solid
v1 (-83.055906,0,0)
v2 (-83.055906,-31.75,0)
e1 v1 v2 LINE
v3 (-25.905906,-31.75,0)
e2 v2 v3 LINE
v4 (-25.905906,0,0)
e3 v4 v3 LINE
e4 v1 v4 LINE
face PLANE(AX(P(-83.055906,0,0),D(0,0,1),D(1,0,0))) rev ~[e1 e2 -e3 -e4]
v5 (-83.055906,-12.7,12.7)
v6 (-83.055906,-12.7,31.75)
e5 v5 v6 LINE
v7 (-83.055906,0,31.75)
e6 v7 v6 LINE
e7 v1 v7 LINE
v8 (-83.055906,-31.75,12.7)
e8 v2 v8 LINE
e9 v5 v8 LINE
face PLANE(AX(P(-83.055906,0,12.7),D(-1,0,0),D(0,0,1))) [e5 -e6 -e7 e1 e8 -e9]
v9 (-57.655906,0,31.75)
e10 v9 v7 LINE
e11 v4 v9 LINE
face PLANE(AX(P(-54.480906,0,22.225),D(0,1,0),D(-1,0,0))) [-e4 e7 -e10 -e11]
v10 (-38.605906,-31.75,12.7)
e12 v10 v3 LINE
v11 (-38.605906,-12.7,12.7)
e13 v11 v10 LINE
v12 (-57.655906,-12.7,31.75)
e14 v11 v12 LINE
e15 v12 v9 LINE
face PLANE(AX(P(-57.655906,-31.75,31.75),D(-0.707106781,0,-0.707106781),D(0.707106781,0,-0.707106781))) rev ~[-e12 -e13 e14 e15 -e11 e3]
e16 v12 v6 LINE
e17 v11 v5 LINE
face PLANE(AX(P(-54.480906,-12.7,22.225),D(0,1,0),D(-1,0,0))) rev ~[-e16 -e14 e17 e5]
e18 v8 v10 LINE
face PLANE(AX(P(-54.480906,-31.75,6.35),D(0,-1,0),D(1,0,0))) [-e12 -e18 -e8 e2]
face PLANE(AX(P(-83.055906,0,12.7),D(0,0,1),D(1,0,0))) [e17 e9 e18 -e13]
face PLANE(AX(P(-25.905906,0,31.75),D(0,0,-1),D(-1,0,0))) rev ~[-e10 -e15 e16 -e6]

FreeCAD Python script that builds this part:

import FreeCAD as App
import Part
import Sketcher

V = App.Vector
Q = App.Units.Quantity

doc = App.newDocument("Part")
body = doc.addObject("PartDesign::Body", "Body")

sketch1 = body.newObject("Sketcher::SketchObject", "Sketch")
sketch1.AttachmentSupport = (doc.getObject("XZ_Plane"), [""])
sketch1.MapMode = "FlatFace"
sketch1.addGeometry([
    Part.LineSegment(V(-83, 13, 0), V(-83, 0, 0)),
    Part.LineSegment(V(-83, 0, 0), V(-26, 0, 0)),
    Part.LineSegment(V(-26, 0, 0), V(-26, 13, 0)),
    Part.LineSegment(V(-26, 13, 0), V(-83, 13, 0)),
], False)
sketch1.addConstraint([
    Sketcher.Constraint("Coincident", 0, 2, 1, 1),
    Sketcher.Constraint("Coincident", 1, 2, 2, 1),
    Sketcher.Constraint("Coincident", 2, 2, 3, 1),
    Sketcher.Constraint("Coincident", 3, 2, 0, 1),
    Sketcher.Constraint("Vertical", 0),
    Sketcher.Constraint("Horizontal", 1),
    Sketcher.Constraint("Vertical", 2),
    Sketcher.Constraint("Horizontal", 3),
    Sketcher.Constraint("PointOnObject", 0, 2, -1),
    Sketcher.Constraint("DistanceY", 0, 2, 0, 1, Q("0.5 in")),
    Sketcher.Constraint("DistanceX", 1, 1, 1, 2, Q("2.25 in")),
    Sketcher.Constraint("DistanceX", 0, 2, -1, 1, Q("83.055906 mm")),
])
pad1 = body.newObject("PartDesign::Pad", "Pad")
pad1.Profile = sketch1
pad1.Length = Q("1.25 in")

sketch2 = body.newObject("Sketcher::SketchObject", "Sketch001")
sketch2.AttachmentSupport = (doc.getObject("XZ_Plane"), [""])
sketch2.MapMode = "FlatFace"
sketch2.addGeometry([
    Part.LineSegment(V(-26, 32, 0), V(-26, 13, 0)),
    Part.LineSegment(V(-26, 13, 0), V(-83, 13, 0)),
    Part.LineSegment(V(-83, 13, 0), V(-83, 32, 0)),
    Part.LineSegment(V(-83, 32, 0), V(-26, 32, 0)),
], False)
sketch2.addConstraint([
    Sketcher.Constraint("Coincident", 0, 2, 1, 1),
    Sketcher.Constraint("Coincident", 1, 2, 2, 1),
    Sketcher.Constraint("Coincident", 2, 2, 3, 1),
    Sketcher.Constraint("Coincident", 3, 2, 0, 1),
    Sketcher.Constraint("Vertical", 0),
    Sketcher.Constraint("Horizontal", 1),
    Sketcher.Constraint("Vertical", 2),
    Sketcher.Constraint("Horizontal", 3),
    Sketcher.Constraint("DistanceX", 1, 2, 1, 1, Q("2.25 in")),
    Sketcher.Constraint("DistanceY", 0, 2, 0, 1, Q("0.75 in")),
    Sketcher.Constraint("DistanceY", -1, 1, 0, 2, Q("0.5 in")),
    Sketcher.Constraint("DistanceX", 0, 2, -1, 1, Q("25.905906 mm")),
])
pad2 = body.newObject("PartDesign::Pad", "Pad001")
pad2.Profile = sketch2
pad2.Length = Q("0.5 in")

sketch3 = body.newObject("Sketcher::SketchObject", "Sketch002")
sketch3.AttachmentSupport = (doc.getObject("XZ_Plane"), [""])
sketch3.MapMode = "FlatFace"
sketch3.AttachmentOffset = App.Placement(V(0, 0, 1.25 * 25.4), App.Rotation())
sketch3.addGeometry([
    Part.LineSegment(V(-58, 32, 0), V(-26, 0, 0)),
    Part.LineSegment(V(-26, 0, 0), V(-26, 32, 0)),
    Part.LineSegment(V(-26, 32, 0), V(-58, 32, 0)),
], False)
sketch3.addConstraint([
    Sketcher.Constraint("Coincident", 0, 2, 1, 1),
    Sketcher.Constraint("Coincident", 1, 2, 2, 1),
    Sketcher.Constraint("Coincident", 2, 2, 0, 1),
    Sketcher.Constraint("Vertical", 1),
    Sketcher.Constraint("Horizontal", 2),
    Sketcher.Constraint("PointOnObject", 0, 2, -1),
    Sketcher.Constraint("Equal", 2, 1),
    Sketcher.Constraint("DistanceX", 2, 2, 2, 1, Q("1.25 in")),
    Sketcher.Constraint("DistanceX", 0, 2, -1, 1, Q("25.905906 mm")),
])
pocket1 = body.newObject("PartDesign::Pocket", "Pocket")
pocket1.Profile = sketch3
pocket1.Type = "ThroughAll"

doc.recompute()
